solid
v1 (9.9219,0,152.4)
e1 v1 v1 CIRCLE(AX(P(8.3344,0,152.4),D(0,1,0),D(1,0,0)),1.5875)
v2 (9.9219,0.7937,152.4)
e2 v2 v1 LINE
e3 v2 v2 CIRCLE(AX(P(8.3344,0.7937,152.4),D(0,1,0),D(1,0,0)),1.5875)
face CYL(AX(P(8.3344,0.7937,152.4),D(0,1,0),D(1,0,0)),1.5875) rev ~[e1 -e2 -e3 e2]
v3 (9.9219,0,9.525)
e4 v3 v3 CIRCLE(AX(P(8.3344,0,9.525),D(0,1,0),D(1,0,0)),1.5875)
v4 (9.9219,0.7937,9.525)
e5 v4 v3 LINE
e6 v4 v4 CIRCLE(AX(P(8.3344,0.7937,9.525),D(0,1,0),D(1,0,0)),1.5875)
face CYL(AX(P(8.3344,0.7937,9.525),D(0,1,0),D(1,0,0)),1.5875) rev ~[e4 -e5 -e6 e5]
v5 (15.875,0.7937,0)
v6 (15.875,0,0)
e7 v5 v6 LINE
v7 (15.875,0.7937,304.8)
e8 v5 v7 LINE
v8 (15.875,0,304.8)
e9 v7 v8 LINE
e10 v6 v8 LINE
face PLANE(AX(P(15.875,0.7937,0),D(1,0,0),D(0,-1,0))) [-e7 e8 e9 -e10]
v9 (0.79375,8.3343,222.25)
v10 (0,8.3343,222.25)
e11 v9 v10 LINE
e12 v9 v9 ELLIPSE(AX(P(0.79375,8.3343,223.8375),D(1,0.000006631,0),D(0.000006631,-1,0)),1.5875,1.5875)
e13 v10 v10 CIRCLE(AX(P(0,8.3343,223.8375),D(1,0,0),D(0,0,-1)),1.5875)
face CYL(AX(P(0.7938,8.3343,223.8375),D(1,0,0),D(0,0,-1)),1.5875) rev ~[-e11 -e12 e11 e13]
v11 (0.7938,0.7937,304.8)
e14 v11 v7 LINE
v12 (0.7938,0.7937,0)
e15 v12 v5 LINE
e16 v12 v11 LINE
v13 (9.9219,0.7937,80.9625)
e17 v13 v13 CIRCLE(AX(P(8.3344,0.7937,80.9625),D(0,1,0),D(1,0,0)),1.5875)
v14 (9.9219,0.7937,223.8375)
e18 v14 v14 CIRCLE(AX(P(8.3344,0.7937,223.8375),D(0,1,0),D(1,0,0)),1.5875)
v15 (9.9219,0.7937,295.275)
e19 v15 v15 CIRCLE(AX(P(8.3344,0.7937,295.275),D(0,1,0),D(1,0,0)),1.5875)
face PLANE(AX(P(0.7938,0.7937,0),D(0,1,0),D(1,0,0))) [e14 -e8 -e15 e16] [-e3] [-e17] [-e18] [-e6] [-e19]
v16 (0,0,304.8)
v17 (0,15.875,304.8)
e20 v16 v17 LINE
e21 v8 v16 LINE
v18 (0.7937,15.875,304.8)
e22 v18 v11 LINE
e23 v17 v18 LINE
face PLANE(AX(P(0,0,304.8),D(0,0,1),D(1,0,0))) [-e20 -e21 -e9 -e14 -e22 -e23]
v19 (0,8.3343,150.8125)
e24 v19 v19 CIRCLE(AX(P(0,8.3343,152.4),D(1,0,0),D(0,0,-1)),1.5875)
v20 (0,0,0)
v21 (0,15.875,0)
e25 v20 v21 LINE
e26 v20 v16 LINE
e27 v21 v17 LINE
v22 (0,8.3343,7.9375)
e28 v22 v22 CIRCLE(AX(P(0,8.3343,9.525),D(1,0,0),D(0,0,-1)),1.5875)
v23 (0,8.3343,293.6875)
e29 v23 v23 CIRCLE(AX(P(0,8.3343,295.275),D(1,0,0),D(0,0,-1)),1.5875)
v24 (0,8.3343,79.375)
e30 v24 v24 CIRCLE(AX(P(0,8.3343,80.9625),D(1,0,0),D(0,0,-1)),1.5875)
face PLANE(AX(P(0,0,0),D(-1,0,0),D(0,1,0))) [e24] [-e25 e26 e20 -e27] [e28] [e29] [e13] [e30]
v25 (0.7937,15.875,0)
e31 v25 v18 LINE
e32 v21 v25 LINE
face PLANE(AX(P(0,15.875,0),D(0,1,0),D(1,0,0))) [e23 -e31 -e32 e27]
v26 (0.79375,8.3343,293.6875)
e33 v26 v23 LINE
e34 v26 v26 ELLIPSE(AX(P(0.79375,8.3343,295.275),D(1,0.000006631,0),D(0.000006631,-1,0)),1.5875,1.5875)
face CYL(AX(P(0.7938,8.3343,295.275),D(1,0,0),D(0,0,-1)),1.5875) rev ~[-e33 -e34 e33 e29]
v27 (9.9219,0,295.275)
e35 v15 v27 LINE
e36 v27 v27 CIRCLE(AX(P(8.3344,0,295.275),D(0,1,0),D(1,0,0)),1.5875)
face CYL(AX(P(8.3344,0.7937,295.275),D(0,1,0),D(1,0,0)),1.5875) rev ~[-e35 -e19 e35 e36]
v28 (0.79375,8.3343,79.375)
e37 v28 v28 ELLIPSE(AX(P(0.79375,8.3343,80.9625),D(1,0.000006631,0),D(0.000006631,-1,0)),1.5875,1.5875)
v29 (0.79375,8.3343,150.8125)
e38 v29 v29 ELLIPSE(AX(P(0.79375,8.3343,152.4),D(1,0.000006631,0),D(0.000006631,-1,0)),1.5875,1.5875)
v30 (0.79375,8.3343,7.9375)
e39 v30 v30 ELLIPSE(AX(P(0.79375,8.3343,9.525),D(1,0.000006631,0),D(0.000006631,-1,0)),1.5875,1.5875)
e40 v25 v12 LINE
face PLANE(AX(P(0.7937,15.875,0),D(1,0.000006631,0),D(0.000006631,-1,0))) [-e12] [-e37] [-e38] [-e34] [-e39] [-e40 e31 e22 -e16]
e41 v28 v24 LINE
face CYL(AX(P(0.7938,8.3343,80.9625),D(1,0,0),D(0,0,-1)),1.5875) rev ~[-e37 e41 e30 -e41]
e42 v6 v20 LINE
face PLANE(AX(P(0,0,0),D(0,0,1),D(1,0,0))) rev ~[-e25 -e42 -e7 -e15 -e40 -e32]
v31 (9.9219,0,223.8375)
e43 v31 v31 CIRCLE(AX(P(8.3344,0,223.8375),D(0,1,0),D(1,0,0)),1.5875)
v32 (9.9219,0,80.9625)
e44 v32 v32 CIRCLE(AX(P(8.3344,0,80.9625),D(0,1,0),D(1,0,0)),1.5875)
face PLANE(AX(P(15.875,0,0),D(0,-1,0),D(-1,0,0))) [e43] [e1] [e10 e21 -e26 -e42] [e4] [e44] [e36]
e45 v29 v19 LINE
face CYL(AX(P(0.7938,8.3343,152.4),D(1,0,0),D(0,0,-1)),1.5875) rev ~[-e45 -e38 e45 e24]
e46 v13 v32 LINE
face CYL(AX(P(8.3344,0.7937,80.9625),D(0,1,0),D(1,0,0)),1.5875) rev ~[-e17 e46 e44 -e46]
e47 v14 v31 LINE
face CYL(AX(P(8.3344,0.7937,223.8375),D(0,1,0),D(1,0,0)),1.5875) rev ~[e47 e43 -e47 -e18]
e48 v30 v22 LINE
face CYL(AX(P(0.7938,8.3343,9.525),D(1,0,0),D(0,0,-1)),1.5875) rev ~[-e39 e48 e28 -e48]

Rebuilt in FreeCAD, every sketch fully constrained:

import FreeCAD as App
import Part
import Sketcher
Q = App.Units.Quantity


def add_polygon(sketch, points):
    """Adds a closed chain of lines whose ends are joined by coincident constraints."""
    first, n = sketch.GeometryCount, len(points)
    for a, b in zip(points, points[1:] + points[:1]):
        sketch.addGeometry(Part.LineSegment(App.Vector(*a, 0), App.Vector(*b, 0)), False)
    for i in range(n):
        sketch.addConstraint(Sketcher.Constraint("Coincident", first + i, 2, first + (i + 1) % n, 1))

doc = App.newDocument("Part")
body = doc.addObject("PartDesign::Body", "Body")

# Sketch on XY plane
sketch1 = body.newObject("Sketcher::SketchObject", "Sketch")
sketch1.AttachmentSupport = (doc.getObject("XY_Plane"), [""])
sketch1.MapMode = "FlatFace"
add_polygon(sketch1, [(0, 15.9), (0, 0), (15.9, 0), (15.9, 0.8), (0.8, 0.8), (0.8, 15.9)])  # lines 0-5
sketch1.addConstraint(Sketcher.Constraint("Vertical", 0))
sketch1.addConstraint(Sketcher.Constraint("Horizontal", 1))
sketch1.addConstraint(Sketcher.Constraint("Vertical", 2))
sketch1.addConstraint(Sketcher.Constraint("Horizontal", 3))
sketch1.addConstraint(Sketcher.Constraint("Vertical", 4))
sketch1.addConstraint(Sketcher.Constraint("Horizontal", 5))
sketch1.addConstraint(Sketcher.Constraint("Coincident", 0, 2, -1, 1))
sketch1.addConstraint(Sketcher.Constraint("Equal", 1, 0))
sketch1.addConstraint(Sketcher.Constraint("Equal", 5, 2))
sketch1.addConstraint(Sketcher.Constraint("DistanceX", 1, 1, 1, 2, Q("0.625 in")))
sketch1.addConstraint(Sketcher.Constraint("DistanceX", 5, 2, 5, 1, Q("0.031248 in")))
pad1 = body.newObject("PartDesign::Pad", "Pad")
pad1.Profile = sketch1
pad1.Length = Q("12 in")

# Sketch on XZ plane
sketch2 = body.newObject("Sketcher::SketchObject", "Sketch001")
sketch2.AttachmentSupport = (doc.getObject("XZ_Plane"), [""])
sketch2.MapMode = "FlatFace"
sketch2.AttachmentOffset = App.Placement(App.Vector(0, 0, -0.031248 * 25.4), App.Rotation())
sketch2.addGeometry(Part.Circle(App.Vector(8.3, 9.5, 0), App.Vector(0, 0, 1), 1.6), False)
sketch2.addGeometry(Part.Circle(App.Vector(8.3, 81, 0), App.Vector(0, 0, 1), 1.6), False)
sketch2.addGeometry(Part.Circle(App.Vector(8.3, 152.4, 0), App.Vector(0, 0, 1), 1.6), False)
sketch2.addGeometry(Part.Circle(App.Vector(8.3, 223.8, 0), App.Vector(0, 0, 1), 1.6), False)
sketch2.addGeometry(Part.Circle(App.Vector(8.3, 295.3, 0), App.Vector(0, 0, 1), 1.6), False)
sketch2.addConstraint(Sketcher.Constraint("Equal", 0, 1))
sketch2.addConstraint(Sketcher.Constraint("Equal", 1, 2))
sketch2.addConstraint(Sketcher.Constraint("Equal", 2, 3))
sketch2.addConstraint(Sketcher.Constraint("Equal", 3, 4))
sketch2.addConstraint(Sketcher.Constraint("Vertical", 0, 3, 1, 3))
sketch2.addConstraint(Sketcher.Constraint("Vertical", 1, 3, 2, 3))
sketch2.addConstraint(Sketcher.Constraint("Vertical", 2, 3, 3, 3))
sketch2.addConstraint(Sketcher.Constraint("Vertical", 3, 3, 4, 3))
sketch2.addConstraint(Sketcher.Constraint("Diameter", 0, Q("0.125 in")))
sketch2.addConstraint(Sketcher.Constraint("DistanceY", -1, 1, 0, 3, Q("0.375 in")))
sketch2.addConstraint(Sketcher.Constraint("DistanceY", -1, 1, 2, 3, Q("6 in")))
sketch2.addConstraint(Sketcher.Constraint("DistanceY", 0, 3, 1, 3, Q("2.8125 in")))
sketch2.addConstraint(Sketcher.Constraint("DistanceY", 2, 3, 3, 3, Q("2.8125 in")))
sketch2.addConstraint(Sketcher.Constraint("DistanceY", 3, 3, 4, 3, Q("2.8125 in")))
sketch2.addConstraint(Sketcher.Constraint("DistanceX", -1, 1, 0, 3, Q("0.328126 in")))
pocket1 = body.newObject("PartDesign::Pocket", "Pocket")
pocket1.Profile = sketch2
pocket1.Type = "ThroughAll"
pocket1.Reversed = True

# Sketch on YZ plane
sketch3 = body.newObject("Sketcher::SketchObject", "Sketch002")
sketch3.AttachmentSupport = (doc.getObject("YZ_Plane"), [""])
sketch3.MapMode = "FlatFace"
sketch3.AttachmentOffset = App.Placement(App.Vector(0, 0, 0.031252 * 25.4), App.Rotation())
sketch3.addGeometry(Part.Circle(App.Vector(8.3, 9.5, 0), App.Vector(0, 0, 1), 1.6), False)
sketch3.addGeometry(Part.Circle(App.Vector(8.3, 81, 0), App.Vector(0, 0, 1), 1.6), False)
sketch3.addGeometry(Part.Circle(App.Vector(8.3, 152.4, 0), App.Vector(0, 0, 1), 1.6), False)
sketch3.addGeometry(Part.Circle(App.Vector(8.3, 223.8, 0), App.Vector(0, 0, 1), 1.6), False)
sketch3.addGeometry(Part.Circle(App.Vector(8.3, 295.3, 0), App.Vector(0, 0, 1), 1.6), False)
sketch3.addConstraint(Sketcher.Constraint("Equal", 0, 1))
sketch3.addConstraint(Sketcher.Constraint("Equal", 1, 2))
sketch3.addConstraint(Sketcher.Constraint("Equal", 2, 3))
sketch3.addConstraint(Sketcher.Constraint("Equal", 3, 4))
sketch3.addConstraint(Sketcher.Constraint("Vertical", 0, 3, 1, 3))
sketch3.addConstraint(Sketcher.Constraint("Vertical", 1, 3, 2, 3))
sketch3.addConstraint(Sketcher.Constraint("Vertical", 2, 3, 3, 3))
sketch3.addConstraint(Sketcher.Constraint("Vertical", 3, 3, 4, 3))
sketch3.addConstraint(Sketcher.Constraint("Diameter", 0, Q("0.125 in")))
sketch3.addConstraint(Sketcher.Constraint("DistanceY", -1, 1, 0, 3, Q("0.375 in")))
sketch3.addConstraint(Sketcher.Constraint("DistanceY", -1, 1, 2, 3, Q("6 in")))
sketch3.addConstraint(Sketcher.Constraint("DistanceY", 0, 3, 1, 3, Q("2.8125 in")))
sketch3.addConstraint(Sketcher.Constraint("DistanceY", 2, 3, 3, 3, Q("2.8125 in")))
sketch3.addConstraint(Sketcher.Constraint("DistanceY", 3, 3, 4, 3, Q("2.8125 in")))
sketch3.addConstraint(Sketcher.Constraint("DistanceX", -1, 1, 0, 3, Q("0.328122 in")))
pocket2 = body.newObject("PartDesign::Pocket", "Pocket001")
pocket2.Profile = sketch3
pocket2.Type = "ThroughAll"

doc.recompute()
